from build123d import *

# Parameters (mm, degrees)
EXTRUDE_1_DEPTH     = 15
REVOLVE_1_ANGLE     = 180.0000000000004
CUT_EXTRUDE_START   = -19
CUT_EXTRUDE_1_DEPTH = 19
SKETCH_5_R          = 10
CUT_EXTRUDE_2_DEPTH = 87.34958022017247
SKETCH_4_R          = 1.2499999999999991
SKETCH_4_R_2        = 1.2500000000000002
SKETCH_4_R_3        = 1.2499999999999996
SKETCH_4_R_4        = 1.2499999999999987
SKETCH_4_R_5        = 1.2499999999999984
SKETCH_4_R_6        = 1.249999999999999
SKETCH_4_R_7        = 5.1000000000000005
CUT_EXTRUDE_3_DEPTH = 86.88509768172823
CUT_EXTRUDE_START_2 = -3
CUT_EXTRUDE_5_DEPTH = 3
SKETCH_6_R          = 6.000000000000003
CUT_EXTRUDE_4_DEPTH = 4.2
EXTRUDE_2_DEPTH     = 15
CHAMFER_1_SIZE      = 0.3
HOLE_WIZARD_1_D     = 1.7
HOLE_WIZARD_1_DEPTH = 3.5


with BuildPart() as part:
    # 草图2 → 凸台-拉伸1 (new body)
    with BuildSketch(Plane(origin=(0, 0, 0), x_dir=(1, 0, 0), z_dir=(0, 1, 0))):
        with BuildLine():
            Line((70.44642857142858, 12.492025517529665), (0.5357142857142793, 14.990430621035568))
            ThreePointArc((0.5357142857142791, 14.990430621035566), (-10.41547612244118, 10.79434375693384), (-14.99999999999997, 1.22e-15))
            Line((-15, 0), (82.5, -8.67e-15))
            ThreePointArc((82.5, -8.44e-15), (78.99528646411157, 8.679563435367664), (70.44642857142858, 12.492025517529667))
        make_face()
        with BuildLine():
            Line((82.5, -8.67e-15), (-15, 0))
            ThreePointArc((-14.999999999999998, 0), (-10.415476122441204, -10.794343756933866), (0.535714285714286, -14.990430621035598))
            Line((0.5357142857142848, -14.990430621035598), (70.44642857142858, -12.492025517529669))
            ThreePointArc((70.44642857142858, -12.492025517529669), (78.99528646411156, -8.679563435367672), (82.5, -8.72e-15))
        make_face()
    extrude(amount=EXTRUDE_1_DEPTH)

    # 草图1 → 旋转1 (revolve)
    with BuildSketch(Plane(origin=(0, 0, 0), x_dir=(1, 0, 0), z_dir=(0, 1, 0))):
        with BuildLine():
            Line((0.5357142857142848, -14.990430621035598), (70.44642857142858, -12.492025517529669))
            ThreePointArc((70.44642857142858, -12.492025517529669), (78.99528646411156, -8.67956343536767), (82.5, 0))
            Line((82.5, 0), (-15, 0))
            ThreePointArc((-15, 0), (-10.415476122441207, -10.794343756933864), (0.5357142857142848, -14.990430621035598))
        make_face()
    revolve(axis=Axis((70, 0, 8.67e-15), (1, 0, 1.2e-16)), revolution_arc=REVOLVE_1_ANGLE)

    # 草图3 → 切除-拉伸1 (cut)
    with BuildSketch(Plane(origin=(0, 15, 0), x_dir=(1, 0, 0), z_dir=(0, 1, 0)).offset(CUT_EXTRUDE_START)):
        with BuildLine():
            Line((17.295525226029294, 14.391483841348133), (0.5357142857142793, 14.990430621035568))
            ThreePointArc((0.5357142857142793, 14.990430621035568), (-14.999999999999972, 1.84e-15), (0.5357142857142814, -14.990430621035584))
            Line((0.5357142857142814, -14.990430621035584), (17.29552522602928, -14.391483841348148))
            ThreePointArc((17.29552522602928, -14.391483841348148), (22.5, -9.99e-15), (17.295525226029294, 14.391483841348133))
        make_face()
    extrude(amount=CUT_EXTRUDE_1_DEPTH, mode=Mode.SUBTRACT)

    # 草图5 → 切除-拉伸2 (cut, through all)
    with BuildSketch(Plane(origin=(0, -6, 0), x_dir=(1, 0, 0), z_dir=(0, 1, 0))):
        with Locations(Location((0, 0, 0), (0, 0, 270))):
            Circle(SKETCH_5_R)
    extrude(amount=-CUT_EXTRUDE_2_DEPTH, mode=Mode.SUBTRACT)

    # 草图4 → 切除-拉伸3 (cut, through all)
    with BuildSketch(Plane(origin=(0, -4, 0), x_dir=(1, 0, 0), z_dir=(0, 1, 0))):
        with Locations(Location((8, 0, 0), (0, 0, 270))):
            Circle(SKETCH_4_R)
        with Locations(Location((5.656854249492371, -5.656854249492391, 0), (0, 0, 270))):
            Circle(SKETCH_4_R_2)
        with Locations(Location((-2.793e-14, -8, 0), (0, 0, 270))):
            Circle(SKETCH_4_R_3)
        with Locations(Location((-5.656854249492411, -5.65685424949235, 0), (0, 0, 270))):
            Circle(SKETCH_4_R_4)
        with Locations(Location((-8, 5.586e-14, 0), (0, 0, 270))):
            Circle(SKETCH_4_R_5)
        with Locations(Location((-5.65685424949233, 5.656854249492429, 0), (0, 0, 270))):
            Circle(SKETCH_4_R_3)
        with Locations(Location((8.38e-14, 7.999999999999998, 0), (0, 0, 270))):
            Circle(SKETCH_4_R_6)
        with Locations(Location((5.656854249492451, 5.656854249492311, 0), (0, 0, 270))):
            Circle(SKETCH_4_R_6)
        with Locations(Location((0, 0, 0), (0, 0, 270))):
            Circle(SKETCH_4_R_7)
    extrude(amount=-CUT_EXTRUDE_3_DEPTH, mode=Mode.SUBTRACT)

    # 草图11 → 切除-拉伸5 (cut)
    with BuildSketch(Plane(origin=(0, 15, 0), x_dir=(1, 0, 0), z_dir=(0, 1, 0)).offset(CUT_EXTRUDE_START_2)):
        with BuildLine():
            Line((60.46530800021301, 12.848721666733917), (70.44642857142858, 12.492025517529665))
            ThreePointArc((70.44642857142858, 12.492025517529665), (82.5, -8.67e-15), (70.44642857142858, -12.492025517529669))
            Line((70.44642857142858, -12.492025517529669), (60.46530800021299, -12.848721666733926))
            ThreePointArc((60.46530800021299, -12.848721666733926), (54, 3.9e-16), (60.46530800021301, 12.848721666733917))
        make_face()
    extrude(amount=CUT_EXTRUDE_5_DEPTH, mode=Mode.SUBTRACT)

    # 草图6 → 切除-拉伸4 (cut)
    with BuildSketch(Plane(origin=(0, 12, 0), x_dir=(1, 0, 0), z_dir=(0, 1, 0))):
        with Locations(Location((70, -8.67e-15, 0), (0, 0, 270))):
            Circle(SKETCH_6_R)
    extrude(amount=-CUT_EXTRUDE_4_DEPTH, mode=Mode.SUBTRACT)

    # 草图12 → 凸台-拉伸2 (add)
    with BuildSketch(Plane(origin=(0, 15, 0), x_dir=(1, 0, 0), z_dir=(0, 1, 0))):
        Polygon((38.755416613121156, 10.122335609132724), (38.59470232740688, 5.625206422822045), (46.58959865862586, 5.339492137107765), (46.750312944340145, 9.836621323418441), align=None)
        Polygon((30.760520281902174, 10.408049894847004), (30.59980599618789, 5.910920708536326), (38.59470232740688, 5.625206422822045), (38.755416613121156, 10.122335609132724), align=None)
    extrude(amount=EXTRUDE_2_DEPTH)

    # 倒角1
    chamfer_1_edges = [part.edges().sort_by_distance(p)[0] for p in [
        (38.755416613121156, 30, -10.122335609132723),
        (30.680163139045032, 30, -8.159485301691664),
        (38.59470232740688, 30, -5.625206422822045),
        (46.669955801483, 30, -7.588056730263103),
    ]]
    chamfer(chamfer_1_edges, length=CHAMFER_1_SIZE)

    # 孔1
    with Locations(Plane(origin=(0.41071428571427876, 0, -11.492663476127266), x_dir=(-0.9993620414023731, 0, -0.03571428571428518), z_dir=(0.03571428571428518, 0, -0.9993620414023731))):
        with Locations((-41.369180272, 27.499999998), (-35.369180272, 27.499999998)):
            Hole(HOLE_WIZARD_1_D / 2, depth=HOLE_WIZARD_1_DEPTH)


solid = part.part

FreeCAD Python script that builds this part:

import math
import FreeCAD as App
import Part
import Sketcher
from FreeCAD import Vector
Q = App.Units.Quantity


def edges_at(feature, points):
    """Names of the edges that pass closest to the given points."""
    edges = feature.Shape.Edges
    near = lambda p: min(range(len(edges)), key=lambda i: edges[i].distToShape(Part.Vertex(*p))[0])
    return sorted({f"Edge{near(p) + 1}" for p in points})


def add_polygon(sketch, points):
    """Adds a closed chain of lines whose ends are joined by coincident constraints."""
    first, n = sketch.GeometryCount, len(points)
    for a, b in zip(points, points[1:] + points[:1]):
        sketch.addGeometry(Part.LineSegment(App.Vector(*a, 0), App.Vector(*b, 0)), False)
    for i in range(n):
        sketch.addConstraint(Sketcher.Constraint("Coincident", first + i, 2, first + (i + 1) % n, 1))

doc = App.newDocument("Part")
body = doc.addObject("PartDesign::Body", "Body")

sketch1 = doc.addObject("Sketcher::SketchObject", "Sketch")
body.addObject(sketch1)
sketch1.AttachmentSupport = (doc.XZ_Plane, [""])
sketch1.MapMode = "FlatFace"
sketch1.addGeometry([
    Part.LineSegment(Vector(70.446429, -12.492026, 0), Vector(0.535714, -14.990431, 0)),
    Part.ArcOfCircle(Part.Circle(Vector(0, 0, 0), Vector(0, 0, 1), 15), math.radians(87.953287), math.radians(272.046713)),
    Part.LineSegment(Vector(0.535714, 14.990431, 0), Vector(70.446429, 12.492026, 0)),
    Part.ArcOfCircle(Part.Circle(Vector(70, 0, 0), Vector(0, 0, 1), 12.5), math.radians(-87.953287), math.radians(87.953287)),
], False)
sketch1.addConstraint([
    Sketcher.Constraint("Tangent", 0, 2, 1, 2),
    Sketcher.Constraint("Tangent", 1, 1, 2, 1),
    Sketcher.Constraint("Tangent", 2, 2, 3, 2),
    Sketcher.Constraint("Tangent", 3, 1, 0, 1),
    Sketcher.Constraint("Coincident", 1, 3, -1, 1),
    Sketcher.Constraint("PointOnObject", 3, 3, -1),
    Sketcher.Constraint("Radius", 1, Q("15 mm")),
    Sketcher.Constraint("Radius", 3, Q("12.5 mm")),
    Sketcher.Constraint("DistanceX", -1, 1, 3, 3, Q("70 mm")),
])
pad1 = doc.addObject("PartDesign::Pad", "Pad")
body.addObject(pad1)
pad1.Profile = sketch1
pad1.Length = 15
pad1.Reversed = True

sketch2 = doc.addObject("Sketcher::SketchObject", "Sketch001")
body.addObject(sketch2)
sketch2.AttachmentSupport = (doc.XZ_Plane, [""])
sketch2.MapMode = "FlatFace"
sketch2.addGeometry([
    Part.LineSegment(Vector(0.535714, 14.990431, 0), Vector(70.446429, 12.492026, 0)),
    Part.ArcOfCircle(Part.Circle(Vector(70, 0, 0), Vector(0, 0, 1), 12.5), math.radians(0), math.radians(87.953287)),
    Part.LineSegment(Vector(82.5, 0, 0), Vector(-15, 0, 0)),
    Part.ArcOfCircle(Part.Circle(Vector(0, 0, 0), Vector(0, 0, 1), 15), math.radians(87.953287), math.radians(180)),
], False)
sketch2.addConstraint([
    Sketcher.Constraint("Tangent", 0, 2, 1, 2),
    Sketcher.Constraint("Coincident", 1, 1, 2, 1),
    Sketcher.Constraint("Coincident", 2, 2, 3, 2),
    Sketcher.Constraint("Tangent", 3, 1, 0, 1),
    Sketcher.Constraint("Horizontal", 2),
    Sketcher.Constraint("Coincident", 3, 3, -1, 1),
    Sketcher.Constraint("PointOnObject", 1, 3, -1),
    Sketcher.Constraint("PointOnObject", 1, 1, -1),
    Sketcher.Constraint("Radius", 3, Q("15 mm")),
    Sketcher.Constraint("Radius", 1, Q("12.5 mm")),
    Sketcher.Constraint("DistanceX", 2, 2, 2, 1, Q("97.5 mm")),
])
revolution = doc.addObject("PartDesign::Revolution", "Revolution")
body.addObject(revolution)
revolution.Profile = sketch2
revolution.ReferenceAxis = (sketch2, ["H_Axis"])
revolution.Angle = 180

sketch3 = doc.addObject("Sketcher::SketchObject", "Sketch002")
body.addObject(sketch3)
sketch3.AttachmentSupport = (doc.XZ_Plane, [""])
sketch3.MapMode = "FlatFace"
sketch3.AttachmentOffset = App.Placement(Vector(0, 0, 4), App.Rotation())
sketch3.addGeometry([
    Part.LineSegment(Vector(17.295525, -14.391484, 0), Vector(0.535714, -14.990431, 0)),
    Part.ArcOfCircle(Part.Circle(Vector(0, 0, 0), Vector(0, 0, 1), 15), math.radians(87.953287), math.radians(272.046713)),
    Part.LineSegment(Vector(0.535714, 14.990431, 0), Vector(17.295525, 14.391484, 0)),
    Part.ArcOfCircle(Part.Circle(Vector(0, 0, 0), Vector(0, 0, 1), 22.5), math.radians(-39.763602), math.radians(39.763602)),
], False)
sketch3.addConstraint([
    Sketcher.Constraint("Tangent", 0, 2, 1, 2),
    Sketcher.Constraint("Tangent", 1, 1, 2, 1),
    Sketcher.Constraint("Coincident", 2, 2, 3, 2),
    Sketcher.Constraint("Coincident", 3, 1, 0, 1),
    Sketcher.Constraint("Coincident", 1, 3, -1, 1),
    Sketcher.Constraint("Coincident", 3, 3, -1, 1),
    Sketcher.Constraint("Vertical", 0, 2, 1, 1),
    Sketcher.Constraint("Radius", 1, Q("15 mm")),
    Sketcher.Constraint("Radius", 3, Q("22.5 mm")),
    Sketcher.Constraint("DistanceY", 0, 2, -1, 1, Q("14.990431 mm")),
])
pocket1 = doc.addObject("PartDesign::Pocket", "Pocket")
body.addObject(pocket1)
pocket1.Profile = sketch3
pocket1.Length = 19

sketch4 = doc.addObject("Sketcher::SketchObject", "Sketch003")
body.addObject(sketch4)
sketch4.AttachmentSupport = (doc.XZ_Plane, [""])
sketch4.MapMode = "FlatFace"
sketch4.AttachmentOffset = App.Placement(Vector(0, 0, 6), App.Rotation())
sketch4.addGeometry(Part.Circle(Vector(0, 0, 0), Vector(0, 0, 1), 10), False)
sketch4.addConstraint([
    Sketcher.Constraint("Coincident", 0, 3, -1, 1),
    Sketcher.Constraint("Diameter", 0, Q("20 mm")),
])
pocket2 = doc.addObject("PartDesign::Pocket", "Pocket001")
body.addObject(pocket2)
pocket2.Profile = sketch4
pocket2.Type = "ThroughAll"
pocket2.Reversed = True

sketch5 = doc.addObject("Sketcher::SketchObject", "Sketch004")
body.addObject(sketch5)
sketch5.AttachmentSupport = (doc.XZ_Plane, [""])
sketch5.MapMode = "FlatFace"
sketch5.AttachmentOffset = App.Placement(Vector(0, 0, 4), App.Rotation())
sketch5.addGeometry([
    Part.Circle(Vector(8, 0, 0), Vector(0, 0, 1), 1.25),
    Part.Circle(Vector(5.656854, 5.656854, 0), Vector(0, 0, 1), 1.25),
    Part.Circle(Vector(0, 8, 0), Vector(0, 0, 1), 1.25),
    Part.Circle(Vector(-5.656854, 5.656854, 0), Vector(0, 0, 1), 1.25),
    Part.Circle(Vector(-8, 0, 0), Vector(0, 0, 1), 1.25),
    Part.Circle(Vector(-5.656854, -5.656854, 0), Vector(0, 0, 1), 1.25),
    Part.Circle(Vector(0, -8, 0), Vector(0, 0, 1), 1.25),
    Part.Circle(Vector(5.656854, -5.656854, 0), Vector(0, 0, 1), 1.25),
    Part.Circle(Vector(0, 0, 0), Vector(0, 0, 1), 5.1),
], False)
sketch5.addConstraint([
    Sketcher.Constraint("Coincident", 8, 3, -1, 1),
    Sketcher.Constraint("Equal", 0, 1),
    Sketcher.Constraint("Equal", 1, 2),
    Sketcher.Constraint("Equal", 2, 3),
    Sketcher.Constraint("Equal", 3, 4),
    Sketcher.Constraint("Equal", 4, 5),
    Sketcher.Constraint("Equal", 5, 6),
    Sketcher.Constraint("Equal", 6, 7),
    Sketcher.Constraint("Symmetric", 0, 3, 4, 3, -1, 1),
    Sketcher.Constraint("Symmetric", 1, 3, 5, 3, -1, 1),
    Sketcher.Constraint("Symmetric", 2, 3, 6, 3, -1, 1),
    Sketcher.Constraint("Symmetric", 3, 3, 7, 3, -1, 1),
    Sketcher.Constraint("Symmetric", 1, 3, 3, 3, -2),
    Sketcher.Constraint("PointOnObject", 0, 3, -1),
    Sketcher.Constraint("PointOnObject", 2, 3, -2),
    Sketcher.Constraint("Diameter", 0, Q("2.5 mm")),
    Sketcher.Constraint("Diameter", 8, Q("10.2 mm")),
    Sketcher.Constraint("DistanceX", -1, 1, 0, 3, Q("8 mm")),
    Sketcher.Constraint("DistanceY", -1, 1, 2, 3, Q("8 mm")),
    Sketcher.Constraint("DistanceX", 3, 3, 1, 3, Q("11.313708 mm")),
    Sketcher.Constraint("DistanceY", 5, 3, 3, 3, Q("11.313708 mm")),
])
pocket3 = doc.addObject("PartDesign::Pocket", "Pocket002")
body.addObject(pocket3)
pocket3.Profile = sketch5
pocket3.Type = "ThroughAll"
pocket3.Reversed = True

sketch6 = doc.addObject("Sketcher::SketchObject", "Sketch005")
body.addObject(sketch6)
sketch6.AttachmentSupport = (doc.XZ_Plane, [""])
sketch6.MapMode = "FlatFace"
sketch6.AttachmentOffset = App.Placement(Vector(0, 0, -12), App.Rotation())
sketch6.addGeometry([
    Part.LineSegment(Vector(70.446429, -12.492026, 0), Vector(60.465308, -12.848722, 0)),
    Part.ArcOfCircle(Part.Circle(Vector(70, 0, 0), Vector(0, 0, 1), 16), math.radians(126.57812), math.radians(233.42188)),
    Part.LineSegment(Vector(60.465308, 12.848722, 0), Vector(70.446429, 12.492026, 0)),
    Part.ArcOfCircle(Part.Circle(Vector(70, 0, 0), Vector(0, 0, 1), 12.5), math.radians(-87.953287), math.radians(87.953287)),
], False)
sketch6.addConstraint([
    Sketcher.Constraint("Coincident", 0, 2, 1, 2),
    Sketcher.Constraint("Coincident", 1, 1, 2, 1),
    Sketcher.Constraint("Tangent", 2, 2, 3, 2),
    Sketcher.Constraint("Tangent", 3, 1, 0, 1),
    Sketcher.Constraint("Coincident", 3, 3, 1, 3),
    Sketcher.Constraint("Symmetric", 0, 2, 1, 1, -1),
    Sketcher.Constraint("Radius", 1, Q("16 mm")),
    Sketcher.Constraint("Radius", 3, Q("12.5 mm")),
    Sketcher.Constraint("DistanceX", -1, 1, 1, 3, Q("70 mm")),
    Sketcher.Constraint("DistanceY", 0, 2, -1, 1, Q("12.848722 mm")),
])
pocket4 = doc.addObject("PartDesign::Pocket", "Pocket003")
body.addObject(pocket4)
pocket4.Profile = sketch6
pocket4.Length = 3

sketch7 = doc.addObject("Sketcher::SketchObject", "Sketch006")
body.addObject(sketch7)
sketch7.AttachmentSupport = (doc.XZ_Plane, [""])
sketch7.MapMode = "FlatFace"
sketch7.AttachmentOffset = App.Placement(Vector(0, 0, -12), App.Rotation())
sketch7.addGeometry(Part.Circle(Vector(70, 0, 0), Vector(0, 0, 1), 6), False)
sketch7.addConstraint([
    Sketcher.Constraint("PointOnObject", 0, 3, -1),
    Sketcher.Constraint("Diameter", 0, Q("12 mm")),
    Sketcher.Constraint("DistanceX", -1, 1, 0, 3, Q("70 mm")),
])
pocket5 = doc.addObject("PartDesign::Pocket", "Pocket004")
body.addObject(pocket5)
pocket5.Profile = sketch7
pocket5.Length = 4.2
pocket5.Reversed = True

sketch8 = doc.addObject("Sketcher::SketchObject", "Sketch007")
body.addObject(sketch8)
sketch8.AttachmentSupport = (doc.XZ_Plane, [""])
sketch8.MapMode = "FlatFace"
sketch8.AttachmentOffset = App.Placement(Vector(0, 0, -15), App.Rotation())
add_polygon(sketch8, [(46.589599, -5.339492), (46.750313, -9.836621), (30.76052, -10.40805), (30.599806, -5.910921)])
sketch8.addConstraint([
    Sketcher.Constraint("Perpendicular", 0, 1),
    Sketcher.Constraint("Perpendicular", 1, 2),
    Sketcher.Constraint("Perpendicular", 2, 3),
    Sketcher.Constraint("Distance", 1, Q("16 mm")),
    Sketcher.Constraint("Distance", 0, Q("4.5 mm")),
    Sketcher.Constraint("DistanceX", -1, 1, 3, 2, Q("46.589599 mm")),
    Sketcher.Constraint("DistanceY", 0, 2, 2, 2, Q("3.925701 mm")),
    Sketcher.Constraint("DistanceY", 0, 2, -1, 1, Q("9.836621 mm")),
])
pad2 = doc.addObject("PartDesign::Pad", "Pad001")
body.addObject(pad2)
pad2.Profile = sketch8
pad2.Length = 15
pad2.Reversed = True
doc.recompute()

chamfer = doc.addObject("PartDesign::Chamfer", "Chamfer")
body.addObject(chamfer)
chamfer.Base = (pad2, edges_at(pad2, [
    (38.755, 30, -10.122),
    (30.68, 30, -8.159),
    (38.595, 30, -5.625),
    (46.67, 30, -7.588),
]))
chamfer.Size = 0.3

sketch9 = doc.addObject("Sketcher::SketchObject", "Sketch008")
body.addObject(sketch9)
sketch9.Placement = App.Placement(Vector(0.410714, 0, -11.492663), App.Rotation(Vector(-0.999362041, 0, -0.035714286), Vector(0, 0.999999999, 0), Vector(0.035714286, 0, -0.999362041), "ZXY"))
sketch9.addGeometry([
    Part.Circle(Vector(-41.36918, 27.5, 0), Vector(0, 0, 1), 0.85),
    Part.Circle(Vector(-35.36918, 27.5, 0), Vector(0, 0, 1), 0.85),
], False)
sketch9.addConstraint([
    Sketcher.Constraint("Equal", 0, 1),
    Sketcher.Constraint("Horizontal", 0, 3, 1, 3),
    Sketcher.Constraint("Diameter", 0, Q("1.7 mm")),
    Sketcher.Constraint("DistanceX", 0, 3, 1, 3, Q("6 mm")),
    Sketcher.Constraint("DistanceY", -1, 1, 0, 3, Q("27.5 mm")),
    Sketcher.Constraint("DistanceX", 0, 3, -1, 1, Q("41.36918 mm")),
])
doc.recompute()
hole = doc.addObject("PartDesign::Hole", "Hole")
body.addObject(hole)
hole.Profile = sketch9
hole.ThreadType = "None"
hole.Diameter = 1.7
hole.DepthType = "Dimension"
hole.Depth = 3.5
hole.DrillPoint = "Flat"

doc.recompute()
